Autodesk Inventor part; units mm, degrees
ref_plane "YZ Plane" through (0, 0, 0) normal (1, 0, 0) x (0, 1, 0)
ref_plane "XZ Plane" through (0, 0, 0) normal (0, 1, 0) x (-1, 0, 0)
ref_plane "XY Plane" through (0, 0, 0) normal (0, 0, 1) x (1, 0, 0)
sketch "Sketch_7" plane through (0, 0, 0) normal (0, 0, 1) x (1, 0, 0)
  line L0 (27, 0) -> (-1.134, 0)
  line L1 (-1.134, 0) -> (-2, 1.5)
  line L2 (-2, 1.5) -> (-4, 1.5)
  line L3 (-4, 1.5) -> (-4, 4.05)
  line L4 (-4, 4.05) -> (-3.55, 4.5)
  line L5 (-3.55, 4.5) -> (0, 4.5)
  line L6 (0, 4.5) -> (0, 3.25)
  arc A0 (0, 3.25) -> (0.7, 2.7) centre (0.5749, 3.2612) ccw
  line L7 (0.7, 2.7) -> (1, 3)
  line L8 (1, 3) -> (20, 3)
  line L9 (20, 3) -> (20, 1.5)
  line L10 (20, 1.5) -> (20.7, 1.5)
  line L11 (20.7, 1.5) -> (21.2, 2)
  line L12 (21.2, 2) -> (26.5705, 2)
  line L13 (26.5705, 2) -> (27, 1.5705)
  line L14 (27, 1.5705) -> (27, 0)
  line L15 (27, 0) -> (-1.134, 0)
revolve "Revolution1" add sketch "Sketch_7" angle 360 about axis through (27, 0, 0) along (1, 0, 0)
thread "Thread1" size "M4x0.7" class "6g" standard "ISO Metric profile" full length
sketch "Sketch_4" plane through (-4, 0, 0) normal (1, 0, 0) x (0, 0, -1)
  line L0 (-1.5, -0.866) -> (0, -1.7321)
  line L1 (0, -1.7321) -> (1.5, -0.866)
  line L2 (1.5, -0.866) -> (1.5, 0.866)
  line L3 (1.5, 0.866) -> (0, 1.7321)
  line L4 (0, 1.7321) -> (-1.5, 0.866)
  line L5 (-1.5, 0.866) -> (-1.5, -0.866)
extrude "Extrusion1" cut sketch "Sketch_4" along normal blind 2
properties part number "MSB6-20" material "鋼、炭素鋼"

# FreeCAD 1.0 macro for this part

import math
import FreeCAD as App
import Part
import Sketcher

V = App.Vector
Q = App.Units.Quantity


def add_polygon(sketch, points):
    """Adds a closed chain of lines whose ends are joined by coincident constraints."""
    first, n = sketch.GeometryCount, len(points)
    for a, b in zip(points, points[1:] + points[:1]):
        sketch.addGeometry(Part.LineSegment(App.Vector(*a, 0), App.Vector(*b, 0)), False)
    for i in range(n):
        sketch.addConstraint(Sketcher.Constraint("Coincident", first + i, 2, first + (i + 1) % n, 1))

doc = App.newDocument("Part")
body = doc.addObject("PartDesign::Body", "Body")

sketch1 = doc.addObject("Sketcher::SketchObject", "Sketch")
body.addObject(sketch1)
sketch1.AttachmentSupport = (doc.XY_Plane, [""])
sketch1.MapMode = "FlatFace"
sketch1.addGeometry(Part.LineSegment(V(-1.13, 0, 0), V(27, 0, 0)), False)
sketch1.addGeometry(Part.LineSegment(V(27, 0, 0), V(27, 1.57, 0)), False)
sketch1.addGeometry(Part.LineSegment(V(27, 1.57, 0), V(26.57, 2, 0)), False)
sketch1.addGeometry(Part.LineSegment(V(26.57, 2, 0), V(21.2, 2, 0)), False)
sketch1.addGeometry(Part.LineSegment(V(21.2, 2, 0), V(20.7, 1.5, 0)), False)
sketch1.addGeometry(Part.LineSegment(V(20.7, 1.5, 0), V(20, 1.5, 0)), False)
sketch1.addGeometry(Part.LineSegment(V(20, 1.5, 0), V(20, 3, 0)), False)
sketch1.addGeometry(Part.LineSegment(V(20, 3, 0), V(1, 3, 0)), False)
sketch1.addGeometry(Part.LineSegment(V(1, 3, 0), V(0.7, 2.7, 0)), False)
sketch1.addGeometry(Part.ArcOfCircle(Part.Circle(V(0.57, 3.26, 0), V(0, 0, 1), 0.58), math.radians(-179), math.radians(-77)), False)
sketch1.addGeometry(Part.LineSegment(V(0, 3.25, 0), V(0, 4.5, 0)), False)
sketch1.addGeometry(Part.LineSegment(V(0, 4.5, 0), V(-3.55, 4.5, 0)), False)
sketch1.addGeometry(Part.LineSegment(V(-3.55, 4.5, 0), V(-4, 4.05, 0)), False)
sketch1.addGeometry(Part.LineSegment(V(-4, 4.05, 0), V(-4, 1.5, 0)), False)
sketch1.addGeometry(Part.LineSegment(V(-4, 1.5, 0), V(-2, 1.5, 0)), False)
sketch1.addGeometry(Part.LineSegment(V(-2, 1.5, 0), V(-1.13, 0, 0)), False)
sketch1.addConstraint(Sketcher.Constraint("Coincident", 0, 2, 1, 1))
sketch1.addConstraint(Sketcher.Constraint("Coincident", 1, 2, 2, 1))
sketch1.addConstraint(Sketcher.Constraint("Coincident", 2, 2, 3, 1))
sketch1.addConstraint(Sketcher.Constraint("Coincident", 3, 2, 4, 1))
sketch1.addConstraint(Sketcher.Constraint("Coincident", 4, 2, 5, 1))
sketch1.addConstraint(Sketcher.Constraint("Coincident", 5, 2, 6, 1))
sketch1.addConstraint(Sketcher.Constraint("Coincident", 6, 2, 7, 1))
sketch1.addConstraint(Sketcher.Constraint("Coincident", 7, 2, 8, 1))
sketch1.addConstraint(Sketcher.Constraint("Coincident", 8, 2, 9, 2))
sketch1.addConstraint(Sketcher.Constraint("Coincident", 9, 1, 10, 1))
sketch1.addConstraint(Sketcher.Constraint("Coincident", 10, 2, 11, 1))
sketch1.addConstraint(Sketcher.Constraint("Coincident", 11, 2, 12, 1))
sketch1.addConstraint(Sketcher.Constraint("Coincident", 12, 2, 13, 1))
sketch1.addConstraint(Sketcher.Constraint("Coincident", 13, 2, 14, 1))
sketch1.addConstraint(Sketcher.Constraint("Coincident", 14, 2, 15, 1))
sketch1.addConstraint(Sketcher.Constraint("Coincident", 15, 2, 0, 1))
sketch1.addConstraint(Sketcher.Constraint("Horizontal", 0))
sketch1.addConstraint(Sketcher.Constraint("Vertical", 1))
sketch1.addConstraint(Sketcher.Constraint("Horizontal", 3))
sketch1.addConstraint(Sketcher.Constraint("Horizontal", 5))
sketch1.addConstraint(Sketcher.Constraint("Vertical", 6))
sketch1.addConstraint(Sketcher.Constraint("Horizontal", 7))
sketch1.addConstraint(Sketcher.Constraint("Vertical", 10))
sketch1.addConstraint(Sketcher.Constraint("Horizontal", 11))
sketch1.addConstraint(Sketcher.Constraint("Vertical", 13))
sketch1.addConstraint(Sketcher.Constraint("Horizontal", 14))
sketch1.addConstraint(Sketcher.Constraint("PointOnObject", 0, 2, -1))
sketch1.addConstraint(Sketcher.Constraint("PointOnObject", 9, 1, -2))
sketch1.addConstraint(Sketcher.Constraint("Perpendicular", 2, 4))
sketch1.addConstraint(Sketcher.Constraint("Parallel", 4, 8))
sketch1.addConstraint(Sketcher.Constraint("Parallel", 8, 12))
sketch1.addConstraint(Sketcher.Constraint("Horizontal", 5, 2, 13, 2))
sketch1.addConstraint(Sketcher.Constraint("DistanceX", 7, 2, 7, 1, 19.0))
sketch1.addConstraint(Sketcher.Constraint("DistanceX", 14, 1, 14, 2, 2.0))
sketch1.addConstraint(Sketcher.Constraint("Angle", 2, Q("135 deg")))
sketch1.addConstraint(Sketcher.Constraint("Angle", 15, Q("-60.0007 deg")))
sketch1.addConstraint(Sketcher.Constraint("DistanceX", 5, 2, 5, 1, 0.7))
sketch1.addConstraint(Sketcher.Constraint("DistanceY", 6, 1, 6, 2, 1.5))
sketch1.addConstraint(Sketcher.Constraint("DistanceX", -1, 1, 0, 2, 27.0))
sketch1.addConstraint(Sketcher.Constraint("DistanceY", -1, 1, 2, 2, 2.0))
sketch1.addConstraint(Sketcher.Constraint("DistanceX", -1, 1, 5, 2, 20.0))
sketch1.addConstraint(Sketcher.Constraint("DistanceY", -1, 1, 6, 2, 3.0))
sketch1.addConstraint(Sketcher.Constraint("DistanceX", 12, 2, -1, 1, 4.0))
sketch1.addConstraint(Sketcher.Constraint("Radius", 9, 0.575))
sketch1.addConstraint(Sketcher.Constraint("DistanceX", 8, 2, 4, 2, 20.0))
sketch1.addConstraint(Sketcher.Constraint("DistanceY", 13, 2, 11, 2, 3.0))
sketch1.addConstraint(Sketcher.Constraint("DistanceX", 11, 2, 11, 1, 3.55))
sketch1.addConstraint(Sketcher.Constraint("DistanceY", 10, 1, 10, 2, 1.25))
sketch1.addConstraint(Sketcher.Constraint("DistanceX", 3, 2, 3, 1, 5.3705))
revolution = doc.addObject("PartDesign::Revolution", "Revolution")
body.addObject(revolution)
revolution.Profile = sketch1
revolution.ReferenceAxis = (sketch1, ["H_Axis"])
revolution.Angle = 360

sketch2 = doc.addObject("Sketcher::SketchObject", "Sketch001")
body.addObject(sketch2)
sketch2.AttachmentSupport = (doc.YZ_Plane, [""])
sketch2.MapMode = "FlatFace"
sketch2.AttachmentOffset = App.Placement(V(0, 0, -4), App.Rotation())
add_polygon(sketch2, [(0.9, 1.5), (-0.9, 1.5), (-1.7, 0), (-0.9, -1.5), (0.9, -1.5), (1.7, 0)])
sketch2.addConstraint(Sketcher.Constraint("Horizontal", 0))
sketch2.addConstraint(Sketcher.Constraint("Horizontal", 3))
sketch2.addConstraint(Sketcher.Constraint("Symmetric", 0, 2, 3, 2, -1, 1))
sketch2.addConstraint(Sketcher.Constraint("Symmetric", 1, 2, 4, 2, -1, 1))
sketch2.addConstraint(Sketcher.Constraint("PointOnObject", 1, 2, -1))
sketch2.addConstraint(Sketcher.Constraint("Parallel", 2, 5))
sketch2.addConstraint(Sketcher.Constraint("Vertical", 0, 2, 2, 2))
sketch2.addConstraint(Sketcher.Constraint("DistanceY", 2, 2, 0, 2, 3.0))
sketch2.addConstraint(Sketcher.Constraint("DistanceX", 0, 2, 0, 1, 1.732))
sketch2.addConstraint(Sketcher.Constraint("Distance", 1, 1.732))
pocket1 = doc.addObject("PartDesign::Pocket", "Pocket")
body.addObject(pocket1)
pocket1.Profile = sketch2
pocket1.Length = 2
pocket1.Reversed = True

doc.recompute()
